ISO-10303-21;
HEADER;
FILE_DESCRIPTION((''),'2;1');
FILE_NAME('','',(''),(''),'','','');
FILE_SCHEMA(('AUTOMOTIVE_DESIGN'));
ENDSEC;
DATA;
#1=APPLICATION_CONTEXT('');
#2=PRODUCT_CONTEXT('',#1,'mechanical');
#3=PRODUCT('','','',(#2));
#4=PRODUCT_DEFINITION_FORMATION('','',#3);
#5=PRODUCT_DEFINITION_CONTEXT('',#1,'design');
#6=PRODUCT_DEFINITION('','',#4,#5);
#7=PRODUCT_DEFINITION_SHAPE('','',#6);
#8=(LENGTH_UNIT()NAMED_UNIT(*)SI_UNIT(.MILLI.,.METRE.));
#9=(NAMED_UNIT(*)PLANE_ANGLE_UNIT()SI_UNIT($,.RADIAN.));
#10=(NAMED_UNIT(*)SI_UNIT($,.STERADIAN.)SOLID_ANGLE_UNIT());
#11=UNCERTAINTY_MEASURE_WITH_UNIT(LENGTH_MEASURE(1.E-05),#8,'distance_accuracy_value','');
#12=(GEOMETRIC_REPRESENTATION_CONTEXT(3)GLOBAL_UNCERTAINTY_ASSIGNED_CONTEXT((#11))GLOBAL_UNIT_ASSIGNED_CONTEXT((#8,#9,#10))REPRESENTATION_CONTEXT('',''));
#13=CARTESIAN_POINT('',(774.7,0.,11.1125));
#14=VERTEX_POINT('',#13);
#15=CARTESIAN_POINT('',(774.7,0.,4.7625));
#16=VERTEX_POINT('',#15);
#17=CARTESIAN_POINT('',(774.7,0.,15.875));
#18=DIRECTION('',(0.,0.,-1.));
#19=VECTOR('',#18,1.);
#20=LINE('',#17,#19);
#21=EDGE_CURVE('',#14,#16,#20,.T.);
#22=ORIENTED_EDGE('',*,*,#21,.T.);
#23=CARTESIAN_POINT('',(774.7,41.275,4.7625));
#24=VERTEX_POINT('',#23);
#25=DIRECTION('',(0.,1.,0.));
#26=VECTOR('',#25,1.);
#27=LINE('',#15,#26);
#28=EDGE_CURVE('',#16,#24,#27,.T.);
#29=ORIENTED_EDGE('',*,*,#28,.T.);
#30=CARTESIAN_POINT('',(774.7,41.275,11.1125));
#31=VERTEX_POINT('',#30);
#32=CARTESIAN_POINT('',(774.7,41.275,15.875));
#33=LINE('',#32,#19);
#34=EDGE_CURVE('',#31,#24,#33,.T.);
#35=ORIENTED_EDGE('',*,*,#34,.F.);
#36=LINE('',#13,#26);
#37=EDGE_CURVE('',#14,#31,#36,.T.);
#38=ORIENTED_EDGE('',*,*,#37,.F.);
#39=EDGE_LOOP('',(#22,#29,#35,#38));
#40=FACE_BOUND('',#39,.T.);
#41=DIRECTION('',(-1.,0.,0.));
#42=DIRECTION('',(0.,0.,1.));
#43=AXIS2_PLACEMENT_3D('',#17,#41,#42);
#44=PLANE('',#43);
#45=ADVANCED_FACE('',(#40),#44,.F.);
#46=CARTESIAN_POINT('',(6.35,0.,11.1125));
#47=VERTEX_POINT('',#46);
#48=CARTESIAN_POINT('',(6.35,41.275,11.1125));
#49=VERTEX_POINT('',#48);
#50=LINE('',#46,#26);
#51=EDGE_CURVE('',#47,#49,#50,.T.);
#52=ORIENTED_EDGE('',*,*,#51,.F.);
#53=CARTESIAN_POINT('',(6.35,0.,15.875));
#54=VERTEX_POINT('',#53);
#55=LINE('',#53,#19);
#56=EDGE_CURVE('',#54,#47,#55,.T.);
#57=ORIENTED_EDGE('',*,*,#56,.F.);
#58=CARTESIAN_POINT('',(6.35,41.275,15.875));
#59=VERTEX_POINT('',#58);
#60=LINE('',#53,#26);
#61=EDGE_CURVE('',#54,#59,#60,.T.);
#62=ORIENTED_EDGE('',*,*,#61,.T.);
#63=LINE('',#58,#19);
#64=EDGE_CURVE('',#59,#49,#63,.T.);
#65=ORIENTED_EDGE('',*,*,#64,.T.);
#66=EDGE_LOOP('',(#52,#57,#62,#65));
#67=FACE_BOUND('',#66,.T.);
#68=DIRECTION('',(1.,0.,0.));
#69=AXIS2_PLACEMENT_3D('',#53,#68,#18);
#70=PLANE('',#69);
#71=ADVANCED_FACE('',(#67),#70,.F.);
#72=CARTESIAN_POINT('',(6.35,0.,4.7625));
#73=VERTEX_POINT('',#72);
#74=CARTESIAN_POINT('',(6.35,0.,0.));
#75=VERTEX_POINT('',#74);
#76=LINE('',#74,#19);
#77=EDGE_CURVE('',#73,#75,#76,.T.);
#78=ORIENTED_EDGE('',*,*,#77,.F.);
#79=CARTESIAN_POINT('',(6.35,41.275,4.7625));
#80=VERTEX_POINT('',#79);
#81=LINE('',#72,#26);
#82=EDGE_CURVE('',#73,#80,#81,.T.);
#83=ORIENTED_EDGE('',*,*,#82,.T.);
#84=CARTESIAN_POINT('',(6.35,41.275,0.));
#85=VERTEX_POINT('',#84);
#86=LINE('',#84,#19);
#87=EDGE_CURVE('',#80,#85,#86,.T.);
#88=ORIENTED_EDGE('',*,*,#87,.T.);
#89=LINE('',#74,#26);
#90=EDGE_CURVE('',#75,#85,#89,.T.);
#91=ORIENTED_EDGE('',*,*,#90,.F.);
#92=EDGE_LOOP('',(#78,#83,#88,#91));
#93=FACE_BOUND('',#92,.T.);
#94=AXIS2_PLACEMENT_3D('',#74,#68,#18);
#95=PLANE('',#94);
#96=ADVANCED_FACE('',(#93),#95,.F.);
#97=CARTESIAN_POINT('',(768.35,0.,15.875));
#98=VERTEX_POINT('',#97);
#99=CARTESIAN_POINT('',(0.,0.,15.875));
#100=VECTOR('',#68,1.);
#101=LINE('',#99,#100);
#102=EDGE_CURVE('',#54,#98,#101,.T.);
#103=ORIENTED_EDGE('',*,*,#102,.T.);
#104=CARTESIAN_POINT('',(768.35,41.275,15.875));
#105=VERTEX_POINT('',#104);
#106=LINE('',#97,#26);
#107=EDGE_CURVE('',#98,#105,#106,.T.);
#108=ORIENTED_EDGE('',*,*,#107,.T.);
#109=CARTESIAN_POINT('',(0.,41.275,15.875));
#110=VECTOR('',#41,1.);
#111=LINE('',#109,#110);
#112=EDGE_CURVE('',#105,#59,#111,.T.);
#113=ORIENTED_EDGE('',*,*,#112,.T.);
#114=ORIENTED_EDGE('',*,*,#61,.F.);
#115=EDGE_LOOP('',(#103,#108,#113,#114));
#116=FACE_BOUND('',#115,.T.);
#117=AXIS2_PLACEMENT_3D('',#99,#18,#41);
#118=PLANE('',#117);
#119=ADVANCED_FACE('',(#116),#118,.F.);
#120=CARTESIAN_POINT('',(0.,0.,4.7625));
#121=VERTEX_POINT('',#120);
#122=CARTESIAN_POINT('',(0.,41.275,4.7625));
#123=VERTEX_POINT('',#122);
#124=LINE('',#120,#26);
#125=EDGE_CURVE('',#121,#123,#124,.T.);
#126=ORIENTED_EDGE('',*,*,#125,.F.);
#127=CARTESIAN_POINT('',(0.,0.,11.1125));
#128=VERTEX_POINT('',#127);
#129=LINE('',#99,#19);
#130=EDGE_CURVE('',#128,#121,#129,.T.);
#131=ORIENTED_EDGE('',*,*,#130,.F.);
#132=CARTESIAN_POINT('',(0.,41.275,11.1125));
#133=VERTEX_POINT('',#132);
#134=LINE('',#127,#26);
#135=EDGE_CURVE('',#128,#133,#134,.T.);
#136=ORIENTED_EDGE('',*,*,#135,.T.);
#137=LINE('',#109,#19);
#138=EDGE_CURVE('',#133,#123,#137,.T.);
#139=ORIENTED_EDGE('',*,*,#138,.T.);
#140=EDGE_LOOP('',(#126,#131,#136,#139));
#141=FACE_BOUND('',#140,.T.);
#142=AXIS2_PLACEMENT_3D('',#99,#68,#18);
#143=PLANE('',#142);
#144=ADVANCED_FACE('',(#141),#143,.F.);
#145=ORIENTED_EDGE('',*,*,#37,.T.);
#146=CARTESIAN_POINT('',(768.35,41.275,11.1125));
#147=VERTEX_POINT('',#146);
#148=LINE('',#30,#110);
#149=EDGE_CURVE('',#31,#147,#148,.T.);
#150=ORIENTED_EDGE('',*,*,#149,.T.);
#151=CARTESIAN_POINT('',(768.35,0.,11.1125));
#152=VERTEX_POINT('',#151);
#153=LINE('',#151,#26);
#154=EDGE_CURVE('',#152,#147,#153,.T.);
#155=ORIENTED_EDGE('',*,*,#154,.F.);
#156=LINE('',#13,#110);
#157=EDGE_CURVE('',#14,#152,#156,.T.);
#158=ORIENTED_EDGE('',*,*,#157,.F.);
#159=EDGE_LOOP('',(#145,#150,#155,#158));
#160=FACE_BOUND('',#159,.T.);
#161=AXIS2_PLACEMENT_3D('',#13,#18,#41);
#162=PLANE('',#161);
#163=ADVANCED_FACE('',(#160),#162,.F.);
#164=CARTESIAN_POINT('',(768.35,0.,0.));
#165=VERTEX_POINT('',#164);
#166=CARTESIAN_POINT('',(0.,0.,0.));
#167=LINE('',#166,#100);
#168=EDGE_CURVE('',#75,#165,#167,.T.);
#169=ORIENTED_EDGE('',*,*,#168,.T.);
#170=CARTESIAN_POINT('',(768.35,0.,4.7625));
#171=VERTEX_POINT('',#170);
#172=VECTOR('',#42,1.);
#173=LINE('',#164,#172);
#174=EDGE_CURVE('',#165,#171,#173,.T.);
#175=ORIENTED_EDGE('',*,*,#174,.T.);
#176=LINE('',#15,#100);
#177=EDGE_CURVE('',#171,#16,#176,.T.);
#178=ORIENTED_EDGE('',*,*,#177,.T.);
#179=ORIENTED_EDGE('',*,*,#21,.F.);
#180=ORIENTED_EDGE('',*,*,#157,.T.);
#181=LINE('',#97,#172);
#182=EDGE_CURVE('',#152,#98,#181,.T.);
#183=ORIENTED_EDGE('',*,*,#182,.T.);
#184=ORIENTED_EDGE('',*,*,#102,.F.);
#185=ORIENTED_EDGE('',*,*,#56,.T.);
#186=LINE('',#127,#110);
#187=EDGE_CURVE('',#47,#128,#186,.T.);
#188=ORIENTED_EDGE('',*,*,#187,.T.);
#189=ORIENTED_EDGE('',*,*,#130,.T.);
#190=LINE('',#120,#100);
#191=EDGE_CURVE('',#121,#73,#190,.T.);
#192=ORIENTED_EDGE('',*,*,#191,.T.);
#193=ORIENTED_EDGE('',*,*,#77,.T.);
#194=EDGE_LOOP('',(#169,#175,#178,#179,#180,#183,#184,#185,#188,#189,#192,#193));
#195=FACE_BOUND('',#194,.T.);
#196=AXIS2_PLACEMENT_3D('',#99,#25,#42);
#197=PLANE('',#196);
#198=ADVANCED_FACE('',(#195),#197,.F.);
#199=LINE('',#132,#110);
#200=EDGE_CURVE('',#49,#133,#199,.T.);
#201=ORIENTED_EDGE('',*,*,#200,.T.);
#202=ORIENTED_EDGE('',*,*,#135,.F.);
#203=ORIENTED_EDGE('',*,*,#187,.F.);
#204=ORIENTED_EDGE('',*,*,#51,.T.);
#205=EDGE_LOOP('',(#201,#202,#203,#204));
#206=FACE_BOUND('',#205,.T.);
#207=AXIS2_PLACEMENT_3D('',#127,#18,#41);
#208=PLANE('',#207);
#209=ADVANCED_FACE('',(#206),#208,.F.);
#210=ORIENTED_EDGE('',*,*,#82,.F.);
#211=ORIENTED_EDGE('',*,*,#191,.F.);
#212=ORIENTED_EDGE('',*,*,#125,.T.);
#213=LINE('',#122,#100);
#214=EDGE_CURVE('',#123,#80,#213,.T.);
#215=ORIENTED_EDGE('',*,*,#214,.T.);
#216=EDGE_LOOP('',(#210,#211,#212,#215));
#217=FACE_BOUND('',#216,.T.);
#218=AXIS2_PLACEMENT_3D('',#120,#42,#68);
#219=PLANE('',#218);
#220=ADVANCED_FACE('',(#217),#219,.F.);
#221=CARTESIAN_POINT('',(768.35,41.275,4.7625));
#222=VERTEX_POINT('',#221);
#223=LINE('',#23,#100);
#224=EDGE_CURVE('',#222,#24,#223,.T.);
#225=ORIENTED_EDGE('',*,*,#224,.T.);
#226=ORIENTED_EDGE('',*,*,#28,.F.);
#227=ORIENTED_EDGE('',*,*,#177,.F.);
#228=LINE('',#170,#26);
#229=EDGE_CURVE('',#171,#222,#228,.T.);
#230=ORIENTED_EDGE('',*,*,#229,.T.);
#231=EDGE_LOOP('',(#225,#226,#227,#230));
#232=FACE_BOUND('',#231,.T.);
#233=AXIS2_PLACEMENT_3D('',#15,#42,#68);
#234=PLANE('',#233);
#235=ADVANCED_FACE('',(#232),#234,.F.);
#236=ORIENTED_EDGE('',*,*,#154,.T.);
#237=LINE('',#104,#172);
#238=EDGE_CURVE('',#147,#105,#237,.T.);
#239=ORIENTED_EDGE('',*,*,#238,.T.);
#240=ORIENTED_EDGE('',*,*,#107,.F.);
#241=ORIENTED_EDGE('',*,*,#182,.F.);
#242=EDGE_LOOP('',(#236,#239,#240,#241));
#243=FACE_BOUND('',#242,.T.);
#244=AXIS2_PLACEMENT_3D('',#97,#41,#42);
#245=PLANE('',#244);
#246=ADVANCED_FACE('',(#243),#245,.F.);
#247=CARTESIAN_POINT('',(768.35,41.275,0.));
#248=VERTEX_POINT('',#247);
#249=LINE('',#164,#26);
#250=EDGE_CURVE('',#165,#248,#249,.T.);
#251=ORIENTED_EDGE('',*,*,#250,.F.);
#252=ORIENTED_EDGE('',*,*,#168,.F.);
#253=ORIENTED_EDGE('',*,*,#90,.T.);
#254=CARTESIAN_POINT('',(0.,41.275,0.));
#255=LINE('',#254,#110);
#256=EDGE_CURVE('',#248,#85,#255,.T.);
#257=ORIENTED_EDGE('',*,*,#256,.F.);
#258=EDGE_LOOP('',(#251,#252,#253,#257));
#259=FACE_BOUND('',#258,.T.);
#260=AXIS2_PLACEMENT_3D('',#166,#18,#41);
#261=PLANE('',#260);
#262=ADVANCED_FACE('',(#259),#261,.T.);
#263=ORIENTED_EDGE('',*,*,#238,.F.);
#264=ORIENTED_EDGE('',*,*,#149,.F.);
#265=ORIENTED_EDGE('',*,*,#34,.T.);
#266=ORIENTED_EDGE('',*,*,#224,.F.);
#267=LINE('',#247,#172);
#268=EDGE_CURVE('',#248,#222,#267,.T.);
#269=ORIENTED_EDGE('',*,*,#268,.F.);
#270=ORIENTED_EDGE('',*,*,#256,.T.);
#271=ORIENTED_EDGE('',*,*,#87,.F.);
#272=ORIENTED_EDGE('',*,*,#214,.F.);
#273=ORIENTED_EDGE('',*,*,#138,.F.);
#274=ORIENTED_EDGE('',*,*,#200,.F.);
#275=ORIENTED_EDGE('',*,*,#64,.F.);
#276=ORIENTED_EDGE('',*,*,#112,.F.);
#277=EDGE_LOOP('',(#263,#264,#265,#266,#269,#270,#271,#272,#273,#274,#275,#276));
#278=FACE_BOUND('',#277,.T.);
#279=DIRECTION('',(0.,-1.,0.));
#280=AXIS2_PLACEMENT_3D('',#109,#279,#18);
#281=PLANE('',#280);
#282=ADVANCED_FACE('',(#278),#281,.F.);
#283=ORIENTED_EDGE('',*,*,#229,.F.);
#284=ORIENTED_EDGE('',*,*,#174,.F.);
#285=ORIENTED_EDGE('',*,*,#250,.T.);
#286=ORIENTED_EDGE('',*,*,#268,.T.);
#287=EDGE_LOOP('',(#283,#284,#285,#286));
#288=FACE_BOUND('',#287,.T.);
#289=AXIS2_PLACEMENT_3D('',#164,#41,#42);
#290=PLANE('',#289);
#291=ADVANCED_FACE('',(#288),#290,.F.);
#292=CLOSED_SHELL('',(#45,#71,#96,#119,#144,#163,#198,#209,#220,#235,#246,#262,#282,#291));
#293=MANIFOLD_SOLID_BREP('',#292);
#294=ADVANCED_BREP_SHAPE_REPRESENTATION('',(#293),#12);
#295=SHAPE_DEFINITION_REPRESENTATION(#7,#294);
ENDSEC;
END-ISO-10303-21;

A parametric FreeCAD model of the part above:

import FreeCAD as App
import Part
import Sketcher

V = App.Vector
Q = App.Units.Quantity

doc = App.newDocument("Part")
body = doc.addObject("PartDesign::Body", "Body")

# Sketch on XY plane
sketch1 = doc.addObject("Sketcher::SketchObject", "Sketch")
body.addObject(sketch1)
sketch1.AttachmentSupport = (doc.XY_Plane, [""])
sketch1.MapMode = "FlatFace"
sketch1.addGeometry([
    Part.LineSegment(V(0, 41, 0), V(0, 0, 0)),
    Part.LineSegment(V(0, 0, 0), V(775, 0, 0)),
    Part.LineSegment(V(775, 0, 0), V(775, 41, 0)),
    Part.LineSegment(V(775, 41, 0), V(0, 41, 0)),
], False)
sketch1.addConstraint([
    Sketcher.Constraint("Coincident", 0, 2, 1, 1),
    Sketcher.Constraint("Coincident", 1, 2, 2, 1),
    Sketcher.Constraint("Coincident", 2, 2, 3, 1),
    Sketcher.Constraint("Coincident", 3, 2, 0, 1),
    Sketcher.Constraint("Vertical", 0),
    Sketcher.Constraint("Horizontal", 1),
    Sketcher.Constraint("Vertical", 2),
    Sketcher.Constraint("Horizontal", 3),
    Sketcher.Constraint("Coincident", 0, 2, -1, 1),
    Sketcher.Constraint("DistanceX", 1, 1, 1, 2, Q("30.5 in")),
    Sketcher.Constraint("DistanceY", 0, 2, 0, 1, Q("1.625 in")),
])
pad1 = doc.addObject("PartDesign::Pad", "Pad")
body.addObject(pad1)
pad1.Profile = sketch1
pad1.Length = Q("0.625 in")

# Sketch on XZ plane
sketch2 = doc.addObject("Sketcher::SketchObject", "Sketch001")
body.addObject(sketch2)
sketch2.AttachmentSupport = (doc.XZ_Plane, [""])
sketch2.MapMode = "FlatFace"
sketch2.AttachmentOffset = App.Placement(V(0, 0, -1.625 * 25.4), App.Rotation())
sketch2.addGeometry([
    Part.LineSegment(V(768.4, 11.1, 0), V(768.4, 15.9, 0)),  # 0
    Part.LineSegment(V(768.4, 15.9, 0), V(774.7, 15.9, 0)),  # 1
    Part.LineSegment(V(774.7, 15.9, 0), V(774.7, 11.1, 0)),  # 2
    Part.LineSegment(V(774.7, 11.1, 0), V(768.4, 11.1, 0)),  # 3
    Part.LineSegment(V(768.4, 0, 0), V(768.4, 4.8, 0)),  # 4
    Part.LineSegment(V(768.4, 4.8, 0), V(774.7, 4.8, 0)),  # 5
    Part.LineSegment(V(774.7, 4.8, 0), V(774.7, 0, 0)),  # 6
    Part.LineSegment(V(774.7, 0, 0), V(768.4, 0, 0)),  # 7
    Part.LineSegment(V(0, 0, 0), V(0, 4.8, 0)),  # 8
    Part.LineSegment(V(0, 4.8, 0), V(6.3, 4.8, 0)),  # 9
    Part.LineSegment(V(6.3, 4.8, 0), V(6.3, 0, 0)),  # 10
    Part.LineSegment(V(6.3, 0, 0), V(0, 0, 0)),  # 11
    Part.LineSegment(V(0, 11.1, 0), V(0, 15.9, 0)),  # 12
    Part.LineSegment(V(0, 15.9, 0), V(6.3, 15.9, 0)),  # 13
    Part.LineSegment(V(6.3, 15.9, 0), V(6.3, 11.1, 0)),  # 14
    Part.LineSegment(V(6.3, 11.1, 0), V(0, 11.1, 0)),  # 15
], False)
sketch2.addConstraint([
    Sketcher.Constraint("Coincident", 0, 2, 1, 1),
    Sketcher.Constraint("Coincident", 1, 2, 2, 1),
    Sketcher.Constraint("Coincident", 2, 2, 3, 1),
    Sketcher.Constraint("Coincident", 3, 2, 0, 1),
    Sketcher.Constraint("Coincident", 4, 2, 5, 1),
    Sketcher.Constraint("Coincident", 5, 2, 6, 1),
    Sketcher.Constraint("Coincident", 6, 2, 7, 1),
    Sketcher.Constraint("Coincident", 7, 2, 4, 1),
    Sketcher.Constraint("Coincident", 8, 2, 9, 1),
    Sketcher.Constraint("Coincident", 9, 2, 10, 1),
    Sketcher.Constraint("Coincident", 10, 2, 11, 1),
    Sketcher.Constraint("Coincident", 11, 2, 8, 1),
    Sketcher.Constraint("Coincident", 12, 2, 13, 1),
    Sketcher.Constraint("Coincident", 13, 2, 14, 1),
    Sketcher.Constraint("Coincident", 14, 2, 15, 1),
    Sketcher.Constraint("Coincident", 15, 2, 12, 1),
    Sketcher.Constraint("Vertical", 0),
    Sketcher.Constraint("Horizontal", 1),
    Sketcher.Constraint("Vertical", 2),
    Sketcher.Constraint("Horizontal", 3),
    Sketcher.Constraint("Vertical", 4),
    Sketcher.Constraint("Horizontal", 5),
    Sketcher.Constraint("Vertical", 6),
    Sketcher.Constraint("Horizontal", 7),
    Sketcher.Constraint("Vertical", 8),
    Sketcher.Constraint("Horizontal", 9),
    Sketcher.Constraint("Vertical", 10),
    Sketcher.Constraint("Horizontal", 11),
    Sketcher.Constraint("Vertical", 12),
    Sketcher.Constraint("Horizontal", 13),
    Sketcher.Constraint("Vertical", 14),
    Sketcher.Constraint("Horizontal", 15),
    Sketcher.Constraint("Coincident", 11, 2, -1, 1),
    Sketcher.Constraint("PointOnObject", 6, 2, -1),
    Sketcher.Constraint("PointOnObject", 12, 2, -2),
    Sketcher.Constraint("Horizontal", 5, 2, 8, 2),
    Sketcher.Constraint("Horizontal", 1, 2, 12, 2),
    Sketcher.Constraint("Horizontal", 3, 2, 14, 2),
    Sketcher.Constraint("Vertical", 3, 2, 4, 2),
    Sketcher.Constraint("Vertical", 2, 2, 5, 2),
    Sketcher.Constraint("Vertical", 10, 2, 13, 2),
    Sketcher.Constraint("Equal", 7, 9),
    Sketcher.Constraint("Equal", 2, 4),
    Sketcher.Constraint("DistanceX", 9, 2, 4, 2, Q("30 in")),
    Sketcher.Constraint("DistanceX", 1, 1, 1, 2, Q("0.25 in")),
    Sketcher.Constraint("DistanceY", 0, 1, 0, 2, Q("0.1875 in")),
    Sketcher.Constraint("DistanceY", 4, 2, 3, 2, Q("0.25 in")),
])
pocket1 = doc.addObject("PartDesign::Pocket", "Pocket")
body.addObject(pocket1)
pocket1.Profile = sketch2
pocket1.Type = "ThroughAll"
pocket1.Reversed = True

doc.recompute()
